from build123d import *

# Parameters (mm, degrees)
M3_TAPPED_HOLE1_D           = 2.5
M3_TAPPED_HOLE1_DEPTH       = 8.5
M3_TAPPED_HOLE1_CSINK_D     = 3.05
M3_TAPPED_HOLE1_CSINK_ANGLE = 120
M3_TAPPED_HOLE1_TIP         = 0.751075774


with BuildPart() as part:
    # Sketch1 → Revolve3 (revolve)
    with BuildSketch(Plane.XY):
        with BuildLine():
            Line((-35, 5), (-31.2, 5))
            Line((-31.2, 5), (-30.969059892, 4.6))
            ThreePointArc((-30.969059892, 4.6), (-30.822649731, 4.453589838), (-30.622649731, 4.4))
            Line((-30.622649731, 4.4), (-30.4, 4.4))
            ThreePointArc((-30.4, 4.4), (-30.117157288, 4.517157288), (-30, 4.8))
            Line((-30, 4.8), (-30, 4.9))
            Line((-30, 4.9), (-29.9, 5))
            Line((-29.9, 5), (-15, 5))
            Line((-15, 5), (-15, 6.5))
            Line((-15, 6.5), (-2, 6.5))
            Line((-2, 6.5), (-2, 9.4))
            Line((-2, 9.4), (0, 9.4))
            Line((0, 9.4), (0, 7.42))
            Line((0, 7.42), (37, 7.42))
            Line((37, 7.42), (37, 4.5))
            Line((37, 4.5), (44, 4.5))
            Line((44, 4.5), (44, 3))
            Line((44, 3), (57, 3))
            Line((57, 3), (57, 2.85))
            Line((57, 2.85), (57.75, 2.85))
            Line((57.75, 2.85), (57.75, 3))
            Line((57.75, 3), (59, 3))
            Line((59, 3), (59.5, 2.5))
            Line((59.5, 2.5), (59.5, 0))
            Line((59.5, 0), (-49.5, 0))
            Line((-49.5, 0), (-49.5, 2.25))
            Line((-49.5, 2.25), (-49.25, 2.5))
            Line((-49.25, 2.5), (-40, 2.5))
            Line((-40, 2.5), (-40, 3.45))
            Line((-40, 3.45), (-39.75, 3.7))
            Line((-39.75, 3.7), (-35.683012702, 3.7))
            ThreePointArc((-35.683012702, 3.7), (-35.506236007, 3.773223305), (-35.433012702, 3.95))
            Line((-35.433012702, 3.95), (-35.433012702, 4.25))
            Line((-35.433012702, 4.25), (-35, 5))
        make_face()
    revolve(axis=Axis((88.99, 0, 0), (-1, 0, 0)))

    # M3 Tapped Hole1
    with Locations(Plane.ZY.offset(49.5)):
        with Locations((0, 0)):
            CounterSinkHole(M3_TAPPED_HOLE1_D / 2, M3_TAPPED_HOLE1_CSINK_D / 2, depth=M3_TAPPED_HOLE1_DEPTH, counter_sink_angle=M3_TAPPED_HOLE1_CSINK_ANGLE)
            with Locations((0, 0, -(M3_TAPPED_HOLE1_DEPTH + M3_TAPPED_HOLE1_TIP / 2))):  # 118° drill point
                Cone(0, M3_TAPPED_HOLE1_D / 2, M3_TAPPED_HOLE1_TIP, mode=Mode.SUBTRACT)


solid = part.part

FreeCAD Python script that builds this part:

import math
import FreeCAD as App
import Part
import Sketcher
from FreeCAD import Vector
Q = App.Units.Quantity

doc = App.newDocument("Part")
body = doc.addObject("PartDesign::Body", "Body")

# Sketch on XY plane
sketch1 = body.newObject("Sketcher::SketchObject", "Sketch")
sketch1.AttachmentSupport = (doc.getObject("XY_Plane"), [""])
sketch1.MapMode = "FlatFace"
sketch1.addGeometry([
    Part.LineSegment(Vector(-31.2, 5, 0), Vector(-35, 5, 0)),  # 0
    Part.LineSegment(Vector(-35, 5, 0), Vector(-35.43, 4.25, 0)),  # 1
    Part.LineSegment(Vector(-35.43, 4.25, 0), Vector(-35.43, 3.95, 0)),  # 2
    Part.ArcOfCircle(Part.Circle(Vector(-35.68, 3.95, 0), Vector(0, 0, 1), 0.25), math.radians(-90), math.radians(0)),  # 3
    Part.LineSegment(Vector(-35.68, 3.7, 0), Vector(-39.75, 3.7, 0)),  # 4
    Part.LineSegment(Vector(-39.75, 3.7, 0), Vector(-40, 3.45, 0)),  # 5
    Part.LineSegment(Vector(-40, 3.45, 0), Vector(-40, 2.5, 0)),  # 6
    Part.LineSegment(Vector(-40, 2.5, 0), Vector(-49.25, 2.5, 0)),  # 7
    Part.LineSegment(Vector(-49.25, 2.5, 0), Vector(-49.5, 2.25, 0)),  # 8
    Part.LineSegment(Vector(-49.5, 2.25, 0), Vector(-49.5, 0, 0)),  # 9
    Part.LineSegment(Vector(-49.5, 0, 0), Vector(59.5, 0, 0)),  # 10
    Part.LineSegment(Vector(59.5, 0, 0), Vector(59.5, 2.5, 0)),  # 11
    Part.LineSegment(Vector(59.5, 2.5, 0), Vector(59, 3, 0)),  # 12
    Part.LineSegment(Vector(59, 3, 0), Vector(57.75, 3, 0)),  # 13
    Part.LineSegment(Vector(57.75, 3, 0), Vector(57.75, 2.85, 0)),  # 14
    Part.LineSegment(Vector(57.75, 2.85, 0), Vector(57, 2.85, 0)),  # 15
    Part.LineSegment(Vector(57, 2.85, 0), Vector(57, 3, 0)),  # 16
    Part.LineSegment(Vector(57, 3, 0), Vector(44, 3, 0)),  # 17
    Part.LineSegment(Vector(44, 3, 0), Vector(44, 4.5, 0)),  # 18
    Part.LineSegment(Vector(44, 4.5, 0), Vector(37, 4.5, 0)),  # 19
    Part.LineSegment(Vector(37, 4.5, 0), Vector(37, 7.42, 0)),  # 20
    Part.LineSegment(Vector(37, 7.42, 0), Vector(0, 7.42, 0)),  # 21
    Part.LineSegment(Vector(0, 7.42, 0), Vector(0, 9.4, 0)),  # 22
    Part.LineSegment(Vector(0, 9.4, 0), Vector(-2, 9.4, 0)),  # 23
    Part.LineSegment(Vector(-2, 9.4, 0), Vector(-2, 6.5, 0)),  # 24
    Part.LineSegment(Vector(-2, 6.5, 0), Vector(-15, 6.5, 0)),  # 25
    Part.LineSegment(Vector(-15, 6.5, 0), Vector(-15, 5, 0)),  # 26
    Part.LineSegment(Vector(-15, 5, 0), Vector(-29.9, 5, 0)),  # 27
    Part.LineSegment(Vector(-29.9, 5, 0), Vector(-30, 4.9, 0)),  # 28
    Part.LineSegment(Vector(-30, 4.9, 0), Vector(-30, 4.8, 0)),  # 29
    Part.ArcOfCircle(Part.Circle(Vector(-30.4, 4.8, 0), Vector(0, 0, 1), 0.4), math.radians(-90), math.radians(0)),  # 30
    Part.LineSegment(Vector(-30.4, 4.4, 0), Vector(-30.62, 4.4, 0)),  # 31
    Part.ArcOfCircle(Part.Circle(Vector(-30.62, 4.8, 0), Vector(0, 0, 1), 0.4), math.radians(-150), math.radians(-90)),  # 32
    Part.LineSegment(Vector(-30.97, 4.6, 0), Vector(-31.2, 5, 0)),  # 33
], False)
sketch1.addConstraint([
    Sketcher.Constraint("Coincident", 0, 2, 1, 1),
    Sketcher.Constraint("Coincident", 1, 2, 2, 1),
    Sketcher.Constraint("Tangent", 2, 2, 3, 2),
    Sketcher.Constraint("Tangent", 3, 1, 4, 1),
    Sketcher.Constraint("Coincident", 4, 2, 5, 1),
    Sketcher.Constraint("Coincident", 5, 2, 6, 1),
    Sketcher.Constraint("Coincident", 6, 2, 7, 1),
    Sketcher.Constraint("Coincident", 7, 2, 8, 1),
    Sketcher.Constraint("Coincident", 8, 2, 9, 1),
    Sketcher.Constraint("Coincident", 9, 2, 10, 1),
    Sketcher.Constraint("Coincident", 10, 2, 11, 1),
    Sketcher.Constraint("Coincident", 11, 2, 12, 1),
    Sketcher.Constraint("Coincident", 12, 2, 13, 1),
    Sketcher.Constraint("Coincident", 13, 2, 14, 1),
    Sketcher.Constraint("Coincident", 14, 2, 15, 1),
    Sketcher.Constraint("Coincident", 15, 2, 16, 1),
    Sketcher.Constraint("Coincident", 16, 2, 17, 1),
    Sketcher.Constraint("Coincident", 17, 2, 18, 1),
    Sketcher.Constraint("Coincident", 18, 2, 19, 1),
    Sketcher.Constraint("Coincident", 19, 2, 20, 1),
    Sketcher.Constraint("Coincident", 20, 2, 21, 1),
    Sketcher.Constraint("Coincident", 21, 2, 22, 1),
    Sketcher.Constraint("Coincident", 22, 2, 23, 1),
    Sketcher.Constraint("Coincident", 23, 2, 24, 1),
    Sketcher.Constraint("Coincident", 24, 2, 25, 1),
    Sketcher.Constraint("Coincident", 25, 2, 26, 1),
    Sketcher.Constraint("Coincident", 26, 2, 27, 1),
    Sketcher.Constraint("Coincident", 27, 2, 28, 1),
    Sketcher.Constraint("Coincident", 28, 2, 29, 1),
    Sketcher.Constraint("Tangent", 29, 2, 30, 2),
    Sketcher.Constraint("Tangent", 30, 1, 31, 1),
    Sketcher.Constraint("Tangent", 31, 2, 32, 2),
    Sketcher.Constraint("Tangent", 32, 1, 33, 1),
    Sketcher.Constraint("Coincident", 33, 2, 0, 1),
    Sketcher.Constraint("Horizontal", 0),
    Sketcher.Constraint("Vertical", 2),
    Sketcher.Constraint("Horizontal", 4),
    Sketcher.Constraint("Vertical", 6),
    Sketcher.Constraint("Horizontal", 7),
    Sketcher.Constraint("Vertical", 9),
    Sketcher.Constraint("Horizontal", 10),
    Sketcher.Constraint("Vertical", 11),
    Sketcher.Constraint("Horizontal", 13),
    Sketcher.Constraint("Vertical", 14),
    Sketcher.Constraint("Horizontal", 15),
    Sketcher.Constraint("Vertical", 16),
    Sketcher.Constraint("Horizontal", 17),
    Sketcher.Constraint("Vertical", 18),
    Sketcher.Constraint("Horizontal", 19),
    Sketcher.Constraint("Vertical", 20),
    Sketcher.Constraint("Horizontal", 21),
    Sketcher.Constraint("Vertical", 22),
    Sketcher.Constraint("Horizontal", 23),
    Sketcher.Constraint("Vertical", 24),
    Sketcher.Constraint("Horizontal", 25),
    Sketcher.Constraint("Vertical", 26),
    Sketcher.Constraint("Horizontal", 27),
    Sketcher.Constraint("Vertical", 29),
    Sketcher.Constraint("Horizontal", 31),
    Sketcher.Constraint("Equal", 30, 32),
    Sketcher.Constraint("PointOnObject", 9, 2, -1),
    Sketcher.Constraint("PointOnObject", 21, 2, -2),
    Sketcher.Constraint("Parallel", 5, 8),
    Sketcher.Constraint("Perpendicular", 8, 12),
    Sketcher.Constraint("Perpendicular", 12, 28),
    Sketcher.Constraint("Horizontal", 7, 2, 11, 2),
    Sketcher.Constraint("Horizontal", 13, 2, 16, 2),
    Sketcher.Constraint("Horizontal", 0, 2, 26, 2),
    Sketcher.Constraint("Equal", 17, 25),
    Sketcher.Constraint("Equal", 18, 26),
    Sketcher.Constraint("Equal", 5, 8),
    Sketcher.Constraint("Radius", 30, Q("0.4 mm")),
    Sketcher.Constraint("DistanceX", 10, 1, 10, 2, Q("109 mm")),
    Sketcher.Constraint("DistanceX", 17, 2, 17, 1, Q("13 mm")),
    Sketcher.Constraint("DistanceX", 19, 2, 19, 1, Q("7 mm")),
    Sketcher.Constraint("DistanceX", 21, 2, 21, 1, Q("37 mm")),
    Sketcher.Constraint("DistanceX", 23, 2, 23, 1, Q("2 mm")),
    Sketcher.Constraint("Angle", 1, Q("-120 deg")),
    Sketcher.Constraint("Angle", 5, Q("-135 deg")),
    Sketcher.Constraint("Angle", 33, Q("120 deg")),
    Sketcher.Constraint("Radius", 3, Q("0.25 mm")),
    Sketcher.Constraint("DistanceX", 0, 2, 0, 1, Q("3.8 mm")),
    Sketcher.Constraint("DistanceX", 27, 2, 27, 1, Q("14.9 mm")),
    Sketcher.Constraint("DistanceY", 2, 2, 2, 1, Q("0.3 mm")),
    Sketcher.Constraint("DistanceY", 11, 1, 11, 2, Q("2.5 mm")),
    Sketcher.Constraint("DistanceY", 18, 1, 18, 2, Q("1.5 mm")),
    Sketcher.Constraint("DistanceY", 24, 2, 24, 1, Q("2.9 mm")),
    Sketcher.Constraint("DistanceY", 29, 2, 29, 1, Q("0.1 mm")),
    Sketcher.Constraint("DistanceX", 0, 2, -1, 1, Q("35 mm")),
    Sketcher.Constraint("DistanceY", -1, 1, 0, 2, Q("5 mm")),
    Sketcher.Constraint("DistanceX", 5, 2, -1, 1, Q("40 mm")),
    Sketcher.Constraint("DistanceX", -1, 1, 12, 2, Q("59 mm")),
    Sketcher.Constraint("DistanceY", -1, 1, 12, 2, Q("3 mm")),
    Sketcher.Constraint("DistanceX", 28, 2, -1, 1, Q("30 mm")),
    Sketcher.Constraint("DistanceX", 7, 2, 7, 1, Q("9.25 mm")),
    Sketcher.Constraint("DistanceX", 13, 2, 13, 1, Q("1.25 mm")),
    Sketcher.Constraint("DistanceY", 6, 2, 6, 1, Q("0.95 mm")),
    Sketcher.Constraint("DistanceY", 14, 2, 14, 1, Q("0.15 mm")),
    Sketcher.Constraint("DistanceY", 20, 1, 20, 2, Q("2.92 mm")),
])
revolution = body.newObject("PartDesign::Revolution", "Revolution")
revolution.Profile = sketch1
revolution.ReferenceAxis = (sketch1, ["H_Axis"])
revolution.Angle = 360

# Sketch on YZ plane
sketch2 = body.newObject("Sketcher::SketchObject", "Sketch001")
sketch2.AttachmentSupport = (doc.getObject("YZ_Plane"), [""])
sketch2.MapMode = "FlatFace"
sketch2.AttachmentOffset = App.Placement(Vector(0, 0, -49.5), App.Rotation())
sketch2.addGeometry(Part.Circle(Vector(0, 0, 0), Vector(0, 0, 1), 1.2), False)
sketch2.addConstraint([
    Sketcher.Constraint("Coincident", 0, 3, -1, 1),
    Sketcher.Constraint("Diameter", 0, Q("2.5 mm")),
])
doc.recompute()
hole = body.newObject("PartDesign::Hole", "Hole")
hole.Profile = sketch2
hole.ThreadType = "None"
hole.Diameter = 2.5
hole.DepthType = "Dimension"
hole.Depth = 8.5
hole.DrillPoint = "Angled"
hole.DrillPointAngle = 118
hole.HoleCutType = "Countersink"
hole.HoleCutDiameter = 3.05
hole.HoleCutCountersinkAngle = 120
hole.Reversed = True

doc.recompute()
